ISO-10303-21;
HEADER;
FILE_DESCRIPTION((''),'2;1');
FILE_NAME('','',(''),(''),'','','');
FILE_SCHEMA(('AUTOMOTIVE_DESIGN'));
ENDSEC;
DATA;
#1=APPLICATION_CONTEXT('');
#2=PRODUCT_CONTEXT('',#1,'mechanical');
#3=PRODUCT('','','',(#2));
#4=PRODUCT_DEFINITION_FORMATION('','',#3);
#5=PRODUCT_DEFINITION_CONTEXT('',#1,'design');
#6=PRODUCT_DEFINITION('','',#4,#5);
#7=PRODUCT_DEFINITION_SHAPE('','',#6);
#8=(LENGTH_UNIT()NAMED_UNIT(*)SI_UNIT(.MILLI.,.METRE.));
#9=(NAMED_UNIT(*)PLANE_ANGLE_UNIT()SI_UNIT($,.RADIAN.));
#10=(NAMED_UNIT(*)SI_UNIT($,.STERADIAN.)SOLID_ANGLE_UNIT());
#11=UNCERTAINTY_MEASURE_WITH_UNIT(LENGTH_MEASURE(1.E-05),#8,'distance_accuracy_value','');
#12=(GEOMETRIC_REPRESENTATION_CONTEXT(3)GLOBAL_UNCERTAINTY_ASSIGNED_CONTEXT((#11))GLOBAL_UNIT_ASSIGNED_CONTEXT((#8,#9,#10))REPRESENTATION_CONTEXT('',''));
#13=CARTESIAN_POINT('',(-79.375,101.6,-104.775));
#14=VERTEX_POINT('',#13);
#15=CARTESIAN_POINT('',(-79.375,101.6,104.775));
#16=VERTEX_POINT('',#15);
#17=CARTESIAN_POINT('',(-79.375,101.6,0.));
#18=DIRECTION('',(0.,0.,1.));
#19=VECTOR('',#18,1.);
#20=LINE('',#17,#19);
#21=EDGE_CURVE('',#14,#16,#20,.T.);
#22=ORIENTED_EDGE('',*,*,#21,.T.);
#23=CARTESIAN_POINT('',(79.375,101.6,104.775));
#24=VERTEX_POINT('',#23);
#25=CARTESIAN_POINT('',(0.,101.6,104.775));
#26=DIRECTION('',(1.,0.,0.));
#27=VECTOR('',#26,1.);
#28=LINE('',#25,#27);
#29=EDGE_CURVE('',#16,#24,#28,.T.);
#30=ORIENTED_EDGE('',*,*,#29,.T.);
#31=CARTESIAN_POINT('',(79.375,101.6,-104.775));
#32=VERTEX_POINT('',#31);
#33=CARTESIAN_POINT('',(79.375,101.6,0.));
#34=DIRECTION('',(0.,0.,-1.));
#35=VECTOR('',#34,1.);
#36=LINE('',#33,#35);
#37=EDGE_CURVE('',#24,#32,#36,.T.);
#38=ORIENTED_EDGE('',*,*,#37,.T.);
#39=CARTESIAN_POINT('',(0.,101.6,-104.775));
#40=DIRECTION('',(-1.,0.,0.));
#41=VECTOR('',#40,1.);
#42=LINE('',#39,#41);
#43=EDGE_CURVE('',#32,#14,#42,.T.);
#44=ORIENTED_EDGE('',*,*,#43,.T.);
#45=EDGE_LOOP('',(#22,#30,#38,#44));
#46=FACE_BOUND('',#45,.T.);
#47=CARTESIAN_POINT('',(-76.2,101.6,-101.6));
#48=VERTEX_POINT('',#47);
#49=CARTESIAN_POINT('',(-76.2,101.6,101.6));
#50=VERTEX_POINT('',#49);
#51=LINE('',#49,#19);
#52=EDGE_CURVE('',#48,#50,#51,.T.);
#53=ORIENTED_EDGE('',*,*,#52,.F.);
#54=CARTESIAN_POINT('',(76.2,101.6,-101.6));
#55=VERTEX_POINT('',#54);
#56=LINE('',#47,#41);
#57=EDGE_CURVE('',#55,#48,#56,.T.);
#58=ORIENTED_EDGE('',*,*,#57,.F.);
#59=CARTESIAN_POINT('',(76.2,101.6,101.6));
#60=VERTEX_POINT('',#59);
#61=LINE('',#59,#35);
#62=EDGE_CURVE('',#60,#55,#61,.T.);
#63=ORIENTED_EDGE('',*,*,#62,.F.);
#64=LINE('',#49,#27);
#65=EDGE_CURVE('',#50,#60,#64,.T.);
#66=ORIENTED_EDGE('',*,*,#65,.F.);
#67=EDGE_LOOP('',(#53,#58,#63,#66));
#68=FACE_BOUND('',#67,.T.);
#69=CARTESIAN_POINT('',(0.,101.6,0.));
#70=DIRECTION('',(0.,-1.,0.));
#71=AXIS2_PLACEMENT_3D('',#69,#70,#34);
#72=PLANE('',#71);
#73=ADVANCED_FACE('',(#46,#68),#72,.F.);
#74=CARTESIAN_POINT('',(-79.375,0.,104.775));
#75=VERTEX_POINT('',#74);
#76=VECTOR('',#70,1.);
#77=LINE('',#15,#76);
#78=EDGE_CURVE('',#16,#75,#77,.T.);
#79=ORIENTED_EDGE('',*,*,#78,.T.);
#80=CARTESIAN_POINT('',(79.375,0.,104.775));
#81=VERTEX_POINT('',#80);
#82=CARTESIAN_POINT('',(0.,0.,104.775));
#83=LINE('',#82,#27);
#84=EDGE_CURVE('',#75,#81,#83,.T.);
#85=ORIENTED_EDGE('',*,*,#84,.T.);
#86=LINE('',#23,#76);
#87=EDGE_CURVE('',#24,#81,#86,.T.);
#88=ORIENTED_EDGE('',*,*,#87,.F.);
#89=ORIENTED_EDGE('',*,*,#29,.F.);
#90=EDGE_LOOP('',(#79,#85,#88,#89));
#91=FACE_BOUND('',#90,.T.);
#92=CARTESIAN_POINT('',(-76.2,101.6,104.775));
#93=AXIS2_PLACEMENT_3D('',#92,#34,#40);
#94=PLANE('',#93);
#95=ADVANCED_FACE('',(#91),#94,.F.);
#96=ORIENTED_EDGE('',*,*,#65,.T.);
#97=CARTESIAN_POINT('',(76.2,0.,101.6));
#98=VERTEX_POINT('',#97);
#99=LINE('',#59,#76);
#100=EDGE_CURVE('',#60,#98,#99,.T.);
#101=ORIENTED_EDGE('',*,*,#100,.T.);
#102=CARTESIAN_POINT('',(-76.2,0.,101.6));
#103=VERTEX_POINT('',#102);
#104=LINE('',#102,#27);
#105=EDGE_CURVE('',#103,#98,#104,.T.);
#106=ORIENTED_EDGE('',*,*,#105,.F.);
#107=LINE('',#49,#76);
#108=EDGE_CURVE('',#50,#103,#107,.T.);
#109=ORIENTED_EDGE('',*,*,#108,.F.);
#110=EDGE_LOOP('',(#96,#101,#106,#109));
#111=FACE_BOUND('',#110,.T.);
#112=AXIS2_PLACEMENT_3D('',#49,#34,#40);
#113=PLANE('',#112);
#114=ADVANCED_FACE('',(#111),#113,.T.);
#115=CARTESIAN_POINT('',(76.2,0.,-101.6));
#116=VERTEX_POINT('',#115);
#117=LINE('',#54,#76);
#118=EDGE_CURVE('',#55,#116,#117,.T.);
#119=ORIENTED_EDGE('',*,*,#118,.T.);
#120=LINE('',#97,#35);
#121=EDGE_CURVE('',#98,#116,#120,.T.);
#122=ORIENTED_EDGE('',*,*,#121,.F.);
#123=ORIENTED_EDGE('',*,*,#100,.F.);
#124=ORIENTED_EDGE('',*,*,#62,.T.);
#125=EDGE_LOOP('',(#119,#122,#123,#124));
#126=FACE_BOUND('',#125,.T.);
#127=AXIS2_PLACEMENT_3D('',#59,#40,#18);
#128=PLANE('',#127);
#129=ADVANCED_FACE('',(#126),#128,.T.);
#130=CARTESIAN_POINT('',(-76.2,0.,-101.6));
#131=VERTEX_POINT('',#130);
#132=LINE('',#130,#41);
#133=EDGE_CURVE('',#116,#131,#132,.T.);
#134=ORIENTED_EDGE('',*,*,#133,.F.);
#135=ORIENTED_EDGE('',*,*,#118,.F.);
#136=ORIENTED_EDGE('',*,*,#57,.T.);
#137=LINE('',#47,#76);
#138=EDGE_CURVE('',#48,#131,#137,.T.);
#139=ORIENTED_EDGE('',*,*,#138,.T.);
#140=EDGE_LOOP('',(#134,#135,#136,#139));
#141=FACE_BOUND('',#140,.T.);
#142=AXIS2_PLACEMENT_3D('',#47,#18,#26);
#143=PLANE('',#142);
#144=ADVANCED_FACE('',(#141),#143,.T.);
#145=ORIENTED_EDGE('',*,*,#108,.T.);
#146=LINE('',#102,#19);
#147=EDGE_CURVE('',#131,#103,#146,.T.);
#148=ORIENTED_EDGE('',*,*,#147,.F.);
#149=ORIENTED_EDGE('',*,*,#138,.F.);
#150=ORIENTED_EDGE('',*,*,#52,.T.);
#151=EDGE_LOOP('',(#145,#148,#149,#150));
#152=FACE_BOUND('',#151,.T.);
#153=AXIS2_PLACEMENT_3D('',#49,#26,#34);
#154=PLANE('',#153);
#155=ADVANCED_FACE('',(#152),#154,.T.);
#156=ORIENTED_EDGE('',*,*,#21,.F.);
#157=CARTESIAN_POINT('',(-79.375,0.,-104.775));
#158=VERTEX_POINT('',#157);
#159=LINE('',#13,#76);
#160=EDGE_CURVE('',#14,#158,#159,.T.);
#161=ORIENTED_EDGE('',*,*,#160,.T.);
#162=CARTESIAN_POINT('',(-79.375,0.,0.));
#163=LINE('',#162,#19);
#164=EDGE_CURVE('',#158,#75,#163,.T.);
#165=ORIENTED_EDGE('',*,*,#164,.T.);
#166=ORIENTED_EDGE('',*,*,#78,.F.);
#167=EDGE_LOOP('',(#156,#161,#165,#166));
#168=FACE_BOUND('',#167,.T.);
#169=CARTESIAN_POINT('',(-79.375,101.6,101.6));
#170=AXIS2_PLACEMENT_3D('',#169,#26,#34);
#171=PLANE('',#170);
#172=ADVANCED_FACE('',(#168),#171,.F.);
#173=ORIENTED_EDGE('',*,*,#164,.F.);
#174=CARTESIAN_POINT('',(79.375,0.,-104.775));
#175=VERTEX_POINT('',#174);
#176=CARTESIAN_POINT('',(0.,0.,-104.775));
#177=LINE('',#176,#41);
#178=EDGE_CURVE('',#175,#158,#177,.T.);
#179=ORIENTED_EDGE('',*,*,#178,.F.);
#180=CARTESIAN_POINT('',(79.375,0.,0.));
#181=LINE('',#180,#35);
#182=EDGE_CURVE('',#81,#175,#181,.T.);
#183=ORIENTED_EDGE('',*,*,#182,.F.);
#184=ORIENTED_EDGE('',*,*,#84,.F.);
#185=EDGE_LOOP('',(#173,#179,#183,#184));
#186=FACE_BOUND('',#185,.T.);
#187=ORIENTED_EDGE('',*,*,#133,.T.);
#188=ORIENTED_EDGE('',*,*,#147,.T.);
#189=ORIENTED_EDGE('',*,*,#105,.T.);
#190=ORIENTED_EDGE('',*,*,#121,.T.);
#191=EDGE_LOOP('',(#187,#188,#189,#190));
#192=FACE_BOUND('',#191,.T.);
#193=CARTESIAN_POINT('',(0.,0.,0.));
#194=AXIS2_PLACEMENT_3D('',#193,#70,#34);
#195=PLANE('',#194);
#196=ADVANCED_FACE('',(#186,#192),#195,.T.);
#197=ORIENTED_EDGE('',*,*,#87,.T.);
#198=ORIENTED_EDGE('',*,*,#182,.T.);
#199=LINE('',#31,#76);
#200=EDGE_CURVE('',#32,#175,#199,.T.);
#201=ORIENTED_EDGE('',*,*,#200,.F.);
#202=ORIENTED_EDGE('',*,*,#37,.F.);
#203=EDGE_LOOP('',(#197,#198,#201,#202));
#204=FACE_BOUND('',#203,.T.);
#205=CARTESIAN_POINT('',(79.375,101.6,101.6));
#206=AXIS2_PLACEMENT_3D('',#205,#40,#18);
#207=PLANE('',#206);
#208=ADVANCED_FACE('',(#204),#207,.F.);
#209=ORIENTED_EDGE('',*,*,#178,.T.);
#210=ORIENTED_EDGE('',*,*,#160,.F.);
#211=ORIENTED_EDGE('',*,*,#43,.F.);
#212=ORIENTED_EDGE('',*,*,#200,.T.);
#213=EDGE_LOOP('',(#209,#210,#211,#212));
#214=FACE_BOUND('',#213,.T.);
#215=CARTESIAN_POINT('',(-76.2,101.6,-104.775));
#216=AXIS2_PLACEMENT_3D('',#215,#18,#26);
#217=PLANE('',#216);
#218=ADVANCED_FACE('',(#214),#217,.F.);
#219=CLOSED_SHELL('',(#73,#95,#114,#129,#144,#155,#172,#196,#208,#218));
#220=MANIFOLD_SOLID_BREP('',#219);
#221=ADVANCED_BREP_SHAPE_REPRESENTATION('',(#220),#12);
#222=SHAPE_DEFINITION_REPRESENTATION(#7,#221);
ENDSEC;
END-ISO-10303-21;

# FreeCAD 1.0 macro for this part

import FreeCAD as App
import Part
import Sketcher

V = App.Vector
Q = App.Units.Quantity


def faces_at(feature, points):
    """Names of the faces that lie closest to the given points."""
    faces = feature.Shape.Faces
    near = lambda p: min(range(len(faces)), key=lambda i: faces[i].distToShape(Part.Vertex(*p))[0])
    return sorted({f"Face{near(p) + 1}" for p in points})

doc = App.newDocument("Part")
params = doc.addObject("Spreadsheet::Sheet", "Params")
for row, (alias, value) in enumerate([
    ("sketch1_width", "6 in"),
    ("sketch1_height", "8 in"),
    ("pad1_length", "4 in"),
    ("thickness_wall", "0.125 in"),
], start=1):
    params.set(f"A{row}", alias)
    params.set(f"B{row}", "=" + value)
    params.setAlias(f"B{row}", alias)

body = doc.addObject("PartDesign::Body", "Body")

# Sketch on XZ plane
sketch1 = body.newObject("Sketcher::SketchObject", "Sketch")
sketch1.AttachmentSupport = (doc.getObject("XZ_Plane"), [""])
sketch1.MapMode = "FlatFace"
sketch1.addGeometry([
    Part.LineSegment(V(-76, -102, 0), V(-76, 102, 0)),
    Part.LineSegment(V(-76, 102, 0), V(76, 102, 0)),
    Part.LineSegment(V(76, 102, 0), V(76, -102, 0)),
    Part.LineSegment(V(76, -102, 0), V(-76, -102, 0)),
], False)
sketch1.addConstraint([
    Sketcher.Constraint("Coincident", 0, 2, 1, 1),
    Sketcher.Constraint("Coincident", 1, 2, 2, 1),
    Sketcher.Constraint("Coincident", 2, 2, 3, 1),
    Sketcher.Constraint("Coincident", 3, 2, 0, 1),
    Sketcher.Constraint("Vertical", 0),
    Sketcher.Constraint("Horizontal", 1),
    Sketcher.Constraint("Vertical", 2),
    Sketcher.Constraint("Horizontal", 3),
    Sketcher.Constraint("Symmetric", 0, 2, 2, 2, -1, 1),
    Sketcher.Constraint("DistanceX", 1, 1, 1, 2, Q("6 in")),
    Sketcher.Constraint("DistanceY", 0, 1, 0, 2, Q("8 in")),
])
sketch1.setExpression("Constraints[9]", "Params.sketch1_width")
sketch1.setExpression("Constraints[10]", "Params.sketch1_height")
pad1 = body.newObject("PartDesign::Pad", "Pad")
pad1.Profile = sketch1
pad1.setExpression("Length", "Params.pad1_length")
pad1.Reversed = True
doc.recompute()

thickness = body.newObject("PartDesign::Thickness", "Thickness")
thickness.Base = (pad1, faces_at(pad1, [(0, 0, 0), (0, 101.6, 0)]))
thickness.setExpression("Value", "Params.thickness_wall")
thickness.Reversed = False
thickness.Join = "Intersection"

doc.recompute()
